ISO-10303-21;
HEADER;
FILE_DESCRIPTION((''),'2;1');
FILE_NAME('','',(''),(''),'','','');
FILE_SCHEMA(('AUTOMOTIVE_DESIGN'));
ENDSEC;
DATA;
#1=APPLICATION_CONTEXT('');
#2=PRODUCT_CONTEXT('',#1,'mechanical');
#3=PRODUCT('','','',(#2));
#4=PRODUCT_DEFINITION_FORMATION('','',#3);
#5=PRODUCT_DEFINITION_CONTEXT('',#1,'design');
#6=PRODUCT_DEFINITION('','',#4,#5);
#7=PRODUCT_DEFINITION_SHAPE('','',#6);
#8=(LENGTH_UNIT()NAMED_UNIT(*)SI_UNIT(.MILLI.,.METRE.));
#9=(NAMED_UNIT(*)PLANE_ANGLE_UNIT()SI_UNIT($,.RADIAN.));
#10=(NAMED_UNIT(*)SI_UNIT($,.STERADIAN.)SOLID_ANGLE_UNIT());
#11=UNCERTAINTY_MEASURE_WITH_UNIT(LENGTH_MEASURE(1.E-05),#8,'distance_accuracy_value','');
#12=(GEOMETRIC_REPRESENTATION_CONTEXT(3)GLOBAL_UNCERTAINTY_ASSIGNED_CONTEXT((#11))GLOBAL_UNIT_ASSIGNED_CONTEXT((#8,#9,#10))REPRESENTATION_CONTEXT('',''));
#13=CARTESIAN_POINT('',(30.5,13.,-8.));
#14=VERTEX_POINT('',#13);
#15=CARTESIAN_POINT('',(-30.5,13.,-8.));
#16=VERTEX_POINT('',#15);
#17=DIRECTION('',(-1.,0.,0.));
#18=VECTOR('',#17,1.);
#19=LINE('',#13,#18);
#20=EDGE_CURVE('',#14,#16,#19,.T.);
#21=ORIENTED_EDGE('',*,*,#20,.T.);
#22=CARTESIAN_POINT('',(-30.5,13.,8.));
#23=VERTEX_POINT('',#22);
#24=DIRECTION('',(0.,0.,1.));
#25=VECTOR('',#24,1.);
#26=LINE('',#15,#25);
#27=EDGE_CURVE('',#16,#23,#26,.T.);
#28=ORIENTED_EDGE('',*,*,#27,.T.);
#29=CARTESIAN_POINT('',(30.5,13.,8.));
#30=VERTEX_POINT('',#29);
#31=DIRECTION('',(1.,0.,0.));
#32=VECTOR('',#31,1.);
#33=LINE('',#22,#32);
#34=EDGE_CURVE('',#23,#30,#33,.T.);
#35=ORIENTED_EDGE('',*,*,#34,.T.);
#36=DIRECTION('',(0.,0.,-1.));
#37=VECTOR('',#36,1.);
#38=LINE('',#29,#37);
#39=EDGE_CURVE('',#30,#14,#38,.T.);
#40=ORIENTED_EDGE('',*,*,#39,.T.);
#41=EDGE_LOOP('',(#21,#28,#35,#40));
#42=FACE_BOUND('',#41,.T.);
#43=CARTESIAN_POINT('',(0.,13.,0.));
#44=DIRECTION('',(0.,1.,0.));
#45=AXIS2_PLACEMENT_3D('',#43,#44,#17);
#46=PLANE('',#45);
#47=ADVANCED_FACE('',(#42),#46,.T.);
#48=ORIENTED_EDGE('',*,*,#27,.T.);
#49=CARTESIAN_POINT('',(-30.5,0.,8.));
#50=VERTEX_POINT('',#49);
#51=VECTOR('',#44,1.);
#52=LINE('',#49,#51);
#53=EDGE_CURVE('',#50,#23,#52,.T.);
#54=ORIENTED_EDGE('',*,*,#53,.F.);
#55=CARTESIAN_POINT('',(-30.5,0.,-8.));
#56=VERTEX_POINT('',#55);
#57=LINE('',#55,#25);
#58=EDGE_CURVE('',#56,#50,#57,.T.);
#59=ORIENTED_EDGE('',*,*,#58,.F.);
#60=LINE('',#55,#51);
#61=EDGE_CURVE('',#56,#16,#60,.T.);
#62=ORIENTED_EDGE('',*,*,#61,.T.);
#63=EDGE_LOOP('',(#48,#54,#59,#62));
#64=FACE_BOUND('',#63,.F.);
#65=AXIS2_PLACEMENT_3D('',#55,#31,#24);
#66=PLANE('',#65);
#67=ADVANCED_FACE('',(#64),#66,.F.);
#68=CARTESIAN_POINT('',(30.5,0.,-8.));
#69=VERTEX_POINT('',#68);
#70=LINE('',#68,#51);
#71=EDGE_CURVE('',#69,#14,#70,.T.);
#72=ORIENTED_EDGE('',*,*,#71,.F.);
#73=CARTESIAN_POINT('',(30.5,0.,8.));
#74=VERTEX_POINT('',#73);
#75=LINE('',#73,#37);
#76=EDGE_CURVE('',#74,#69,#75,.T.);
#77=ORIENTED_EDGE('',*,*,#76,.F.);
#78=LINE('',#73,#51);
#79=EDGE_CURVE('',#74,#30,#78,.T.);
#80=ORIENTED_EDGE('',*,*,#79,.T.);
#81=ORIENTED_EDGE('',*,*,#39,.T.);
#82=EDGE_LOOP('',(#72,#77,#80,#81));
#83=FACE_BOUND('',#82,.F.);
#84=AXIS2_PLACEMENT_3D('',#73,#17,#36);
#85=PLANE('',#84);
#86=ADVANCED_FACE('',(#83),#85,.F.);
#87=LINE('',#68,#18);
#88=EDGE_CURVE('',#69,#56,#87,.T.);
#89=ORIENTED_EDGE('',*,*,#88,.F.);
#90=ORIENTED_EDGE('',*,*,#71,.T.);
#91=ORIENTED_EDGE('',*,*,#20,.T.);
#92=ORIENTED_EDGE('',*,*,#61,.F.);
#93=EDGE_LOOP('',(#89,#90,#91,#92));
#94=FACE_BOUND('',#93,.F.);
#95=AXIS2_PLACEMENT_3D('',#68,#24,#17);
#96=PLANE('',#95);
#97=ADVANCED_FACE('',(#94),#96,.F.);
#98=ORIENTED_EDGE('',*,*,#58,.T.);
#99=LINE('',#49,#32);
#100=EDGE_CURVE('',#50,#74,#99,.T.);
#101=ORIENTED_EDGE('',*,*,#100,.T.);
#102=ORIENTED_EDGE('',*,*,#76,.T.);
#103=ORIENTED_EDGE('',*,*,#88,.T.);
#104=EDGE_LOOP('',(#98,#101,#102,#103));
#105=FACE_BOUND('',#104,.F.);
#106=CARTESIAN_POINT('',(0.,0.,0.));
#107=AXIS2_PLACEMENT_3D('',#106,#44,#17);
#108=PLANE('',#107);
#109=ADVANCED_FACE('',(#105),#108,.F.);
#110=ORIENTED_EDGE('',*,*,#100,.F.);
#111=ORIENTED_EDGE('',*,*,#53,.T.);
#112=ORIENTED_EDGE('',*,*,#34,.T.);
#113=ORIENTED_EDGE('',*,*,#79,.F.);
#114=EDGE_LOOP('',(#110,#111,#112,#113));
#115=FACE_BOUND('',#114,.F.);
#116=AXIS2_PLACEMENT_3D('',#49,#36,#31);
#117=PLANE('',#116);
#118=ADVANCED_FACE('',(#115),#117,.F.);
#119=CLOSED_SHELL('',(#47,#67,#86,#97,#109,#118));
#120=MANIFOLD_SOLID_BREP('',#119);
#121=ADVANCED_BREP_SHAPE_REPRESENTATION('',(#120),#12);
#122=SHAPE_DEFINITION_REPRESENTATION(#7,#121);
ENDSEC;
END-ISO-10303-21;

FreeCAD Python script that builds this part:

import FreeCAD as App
import Part
import Sketcher

V = App.Vector
Q = App.Units.Quantity

doc = App.newDocument("Part")
body = doc.addObject("PartDesign::Body", "Body")

# Sketch on XZ plane
sketch1 = body.newObject("Sketcher::SketchObject", "Sketch")
sketch1.AttachmentSupport = (doc.getObject("XZ_Plane"), [""])
sketch1.MapMode = "FlatFace"
sketch1.addGeometry([
    Part.LineSegment(V(-30.5, -8, 0), V(-30.5, 8, 0)),
    Part.LineSegment(V(-30.5, 8, 0), V(30.5, 8, 0)),
    Part.LineSegment(V(30.5, 8, 0), V(30.5, -8, 0)),
    Part.LineSegment(V(30.5, -8, 0), V(-30.5, -8, 0)),
], False)
sketch1.addConstraint([
    Sketcher.Constraint("Coincident", 0, 2, 1, 1),
    Sketcher.Constraint("Coincident", 1, 2, 2, 1),
    Sketcher.Constraint("Coincident", 2, 2, 3, 1),
    Sketcher.Constraint("Coincident", 3, 2, 0, 1),
    Sketcher.Constraint("Vertical", 0),
    Sketcher.Constraint("Horizontal", 1),
    Sketcher.Constraint("Vertical", 2),
    Sketcher.Constraint("Horizontal", 3),
    Sketcher.Constraint("Symmetric", 0, 2, 2, 2, -1, 1),
    Sketcher.Constraint("DistanceX", 1, 1, 1, 2, Q("61 mm")),
    Sketcher.Constraint("DistanceY", 0, 1, 0, 2, Q("16 mm")),
])
pad1 = body.newObject("PartDesign::Pad", "Pad")
pad1.Profile = sketch1
pad1.Length = 13
pad1.Reversed = True

doc.recompute()
